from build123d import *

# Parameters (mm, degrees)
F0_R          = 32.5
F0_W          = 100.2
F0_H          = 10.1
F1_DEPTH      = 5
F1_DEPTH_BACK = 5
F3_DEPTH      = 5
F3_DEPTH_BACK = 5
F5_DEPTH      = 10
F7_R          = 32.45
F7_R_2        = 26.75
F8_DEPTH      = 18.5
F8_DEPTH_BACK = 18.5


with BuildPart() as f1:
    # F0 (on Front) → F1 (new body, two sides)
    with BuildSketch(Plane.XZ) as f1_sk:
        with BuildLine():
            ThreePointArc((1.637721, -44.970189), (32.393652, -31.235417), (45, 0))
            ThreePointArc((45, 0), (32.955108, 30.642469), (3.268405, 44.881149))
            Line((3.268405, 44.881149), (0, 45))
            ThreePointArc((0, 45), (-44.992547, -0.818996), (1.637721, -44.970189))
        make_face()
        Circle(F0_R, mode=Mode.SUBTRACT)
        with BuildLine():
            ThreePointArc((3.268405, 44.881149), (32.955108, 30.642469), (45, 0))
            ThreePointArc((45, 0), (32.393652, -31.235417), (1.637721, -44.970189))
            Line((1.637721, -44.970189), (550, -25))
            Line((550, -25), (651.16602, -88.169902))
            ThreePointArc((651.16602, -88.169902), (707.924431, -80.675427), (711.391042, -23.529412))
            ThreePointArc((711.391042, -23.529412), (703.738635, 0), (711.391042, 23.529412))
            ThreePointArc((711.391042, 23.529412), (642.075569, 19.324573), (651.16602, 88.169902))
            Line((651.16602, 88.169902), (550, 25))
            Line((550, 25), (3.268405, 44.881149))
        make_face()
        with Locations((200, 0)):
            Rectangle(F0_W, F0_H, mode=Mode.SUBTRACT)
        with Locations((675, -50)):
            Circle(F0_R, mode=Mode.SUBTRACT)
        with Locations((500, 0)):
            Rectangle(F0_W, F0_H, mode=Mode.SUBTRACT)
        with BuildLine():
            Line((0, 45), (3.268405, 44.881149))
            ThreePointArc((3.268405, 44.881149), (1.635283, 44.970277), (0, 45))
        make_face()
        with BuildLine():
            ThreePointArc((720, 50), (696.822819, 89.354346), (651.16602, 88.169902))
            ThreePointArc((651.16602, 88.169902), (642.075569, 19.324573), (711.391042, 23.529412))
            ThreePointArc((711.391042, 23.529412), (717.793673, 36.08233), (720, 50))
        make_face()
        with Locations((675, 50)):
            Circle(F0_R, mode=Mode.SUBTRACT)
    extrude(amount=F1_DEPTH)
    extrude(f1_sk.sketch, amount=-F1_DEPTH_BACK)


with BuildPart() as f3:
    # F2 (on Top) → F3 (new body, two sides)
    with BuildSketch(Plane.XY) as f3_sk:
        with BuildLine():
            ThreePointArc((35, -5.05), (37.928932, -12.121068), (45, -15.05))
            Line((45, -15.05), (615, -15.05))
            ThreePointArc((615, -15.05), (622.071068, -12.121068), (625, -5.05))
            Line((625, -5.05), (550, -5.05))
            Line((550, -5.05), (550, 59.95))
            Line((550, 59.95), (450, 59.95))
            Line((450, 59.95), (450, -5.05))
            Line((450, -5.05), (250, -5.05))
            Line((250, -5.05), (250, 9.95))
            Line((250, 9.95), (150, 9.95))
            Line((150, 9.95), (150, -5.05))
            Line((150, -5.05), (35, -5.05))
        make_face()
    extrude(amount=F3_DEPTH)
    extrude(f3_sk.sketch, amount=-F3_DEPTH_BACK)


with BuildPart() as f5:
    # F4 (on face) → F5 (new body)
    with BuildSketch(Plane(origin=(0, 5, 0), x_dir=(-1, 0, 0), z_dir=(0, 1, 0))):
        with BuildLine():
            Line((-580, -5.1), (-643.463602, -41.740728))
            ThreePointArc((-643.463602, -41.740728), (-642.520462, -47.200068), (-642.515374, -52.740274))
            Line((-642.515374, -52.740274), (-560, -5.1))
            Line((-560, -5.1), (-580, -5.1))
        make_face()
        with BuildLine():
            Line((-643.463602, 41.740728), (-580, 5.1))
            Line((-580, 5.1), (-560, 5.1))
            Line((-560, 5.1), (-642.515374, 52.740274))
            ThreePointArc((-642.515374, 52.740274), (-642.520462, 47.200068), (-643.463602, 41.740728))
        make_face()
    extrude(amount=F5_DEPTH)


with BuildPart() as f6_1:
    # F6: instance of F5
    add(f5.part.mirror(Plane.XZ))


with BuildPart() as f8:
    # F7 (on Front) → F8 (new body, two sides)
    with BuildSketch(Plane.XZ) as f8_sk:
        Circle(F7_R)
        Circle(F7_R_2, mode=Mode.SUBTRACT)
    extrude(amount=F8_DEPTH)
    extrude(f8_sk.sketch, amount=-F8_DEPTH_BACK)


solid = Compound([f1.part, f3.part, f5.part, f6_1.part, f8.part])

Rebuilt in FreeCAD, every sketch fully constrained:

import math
import FreeCAD as App
import Part
import Sketcher
Q = App.Units.Quantity


def add_polygon(sketch, points):
    """Adds a closed chain of lines whose ends are joined by coincident constraints."""
    first, n = sketch.GeometryCount, len(points)
    for a, b in zip(points, points[1:] + points[:1]):
        sketch.addGeometry(Part.LineSegment(App.Vector(*a, 0), App.Vector(*b, 0)), False)
    for i in range(n):
        sketch.addConstraint(Sketcher.Constraint("Coincident", first + i, 2, first + (i + 1) % n, 1))

doc = App.newDocument("Part")
params = doc.addObject("Spreadsheet::Sheet", "Params")
for row, (alias, value) in enumerate([
    ("sketch1_diameter", "65 mm"),
    ("sketch1_diameter2", "65 mm"),
    ("sketch1_diameter3", "65 mm"),
    ("sketch1_radius", "45 mm"),
    ("sketch1_radius2", "45 mm"),
    ("pad1_length", "5 mm"),
    ("pad1_length2", "5 mm"),
    ("sketch2_radius", "9.999999 mm"),
    ("sketch2_width", "570 mm"),
    ("sketch2_width2", "75 mm"),
    ("sketch2_width3", "100 mm"),
    ("sketch2_width4", "200 mm"),
    ("pad2_length", "5 mm"),
    ("pad2_length2", "5 mm"),
    ("sketch3_width", "20 mm"),
    ("pad3_length", "10 mm"),
    ("sketch4_diameter", "64.9 mm"),
    ("sketch4_diameter2", "53.5 mm"),
    ("pad4_length", "18.5 mm"),
    ("pad4_length2", "18.5 mm"),
], start=1):
    params.set(f"A{row}", alias)
    params.set(f"B{row}", "=" + value)
    params.setAlias(f"B{row}", alias)

body = doc.addObject("PartDesign::Body", "Body")

# Sketch on XZ plane
sketch1 = body.newObject("Sketcher::SketchObject", "Sketch")
sketch1.AttachmentSupport = (doc.getObject("XZ_Plane"), [""])
sketch1.MapMode = "FlatFace"
sketch1.addGeometry(Part.ArcOfCircle(Part.Circle(App.Vector(0, 0, 0), App.Vector(0, 0, 1), 45), math.radians(90), math.radians(272.085672)), False)  # 0
sketch1.addGeometry(Part.LineSegment(App.Vector(1.637721, -44.970189, 0), App.Vector(550, -25, 0)), False)  # 1
sketch1.addGeometry(Part.LineSegment(App.Vector(550, -25, 0), App.Vector(651.16602, -88.169902, 0)), False)  # 2
sketch1.addGeometry(Part.ArcOfCircle(Part.Circle(App.Vector(675, -50, 0), App.Vector(0, 0, 1), 45), math.radians(-121.981404), math.radians(36.031879)), False)  # 3
sketch1.addGeometry(Part.ArcOfCircle(Part.Circle(App.Vector(743.738635, 0, 0), App.Vector(0, 0, 1), 40), math.radians(143.968121), math.radians(216.031879)), False)  # 4
sketch1.addGeometry(Part.ArcOfCircle(Part.Circle(App.Vector(675.000001, 50, 0), App.Vector(0, 0, 1), 44.999999), math.radians(-36.03188), math.radians(0)), False)  # 5
sketch1.addGeometry(Part.ArcOfCircle(Part.Circle(App.Vector(675, 49.999999, 0), App.Vector(0, 0, 1), 45), math.radians(0.000001), math.radians(121.981403)), False)  # 6
sketch1.addGeometry(Part.LineSegment(App.Vector(651.16602, 88.169902, 0), App.Vector(550, 25, 0)), False)  # 7
sketch1.addGeometry(Part.LineSegment(App.Vector(550, 25, 0), App.Vector(3.268405, 44.881149, 0)), False)  # 8
sketch1.addGeometry(Part.ArcOfCircle(Part.Circle(App.Vector(-0.000023, -0.000663, 0), App.Vector(0, 0, 1), 45.000663), math.radians(85.834902), math.radians(89.999971)), False)  # 9
sketch1.addGeometry(Part.Circle(App.Vector(675, -50, 0), App.Vector(0, 0, 1), 32.5), False)  # 10
sketch1.addGeometry(Part.Circle(App.Vector(0, 0, 0), App.Vector(0, 0, 1), 32.5), False)  # 11
add_polygon(sketch1, [(250.1, -5.05), (149.9, -5.05), (149.9, 5.05), (250.1, 5.05)])  # lines 12-15
add_polygon(sketch1, [(550.1, -5.05), (449.9, -5.05), (449.9, 5.05), (550.1, 5.05)])  # lines 16-19
sketch1.addGeometry(Part.Circle(App.Vector(675, 50, 0), App.Vector(0, 0, 1), 32.5), False)  # 20
sketch1.addConstraint(Sketcher.Constraint("Coincident", 0, 2, 1, 1))
sketch1.addConstraint(Sketcher.Constraint("Coincident", 1, 2, 2, 1))
sketch1.addConstraint(Sketcher.Constraint("Coincident", 2, 2, 3, 1))
sketch1.addConstraint(Sketcher.Constraint("Coincident", 3, 2, 4, 2))
sketch1.addConstraint(Sketcher.Constraint("Coincident", 4, 1, 5, 1))
sketch1.addConstraint(Sketcher.Constraint("Coincident", 5, 2, 6, 1))
sketch1.addConstraint(Sketcher.Constraint("Coincident", 6, 2, 7, 1))
sketch1.addConstraint(Sketcher.Constraint("Coincident", 7, 2, 8, 1))
sketch1.addConstraint(Sketcher.Constraint("Coincident", 8, 2, 9, 1))
sketch1.addConstraint(Sketcher.Constraint("Coincident", 9, 2, 0, 1))
sketch1.addConstraint(Sketcher.Constraint("Horizontal", 12))
sketch1.addConstraint(Sketcher.Constraint("Vertical", 13))
sketch1.addConstraint(Sketcher.Constraint("Horizontal", 14))
sketch1.addConstraint(Sketcher.Constraint("Vertical", 15))
sketch1.addConstraint(Sketcher.Constraint("Horizontal", 16))
sketch1.addConstraint(Sketcher.Constraint("Vertical", 17))
sketch1.addConstraint(Sketcher.Constraint("Horizontal", 18))
sketch1.addConstraint(Sketcher.Constraint("Vertical", 19))
sketch1.addConstraint(Sketcher.Constraint("Coincident", 0, 3, -1, 1))
sketch1.addConstraint(Sketcher.Constraint("Coincident", 11, 3, -1, 1))
sketch1.addConstraint(Sketcher.Constraint("Coincident", 6, 3, 5, 3))
sketch1.addConstraint(Sketcher.Constraint("Coincident", 10, 3, 3, 3))
sketch1.addConstraint(Sketcher.Constraint("Coincident", 20, 3, 5, 3))
sketch1.addConstraint(Sketcher.Constraint("PointOnObject", 4, 3, -1))
sketch1.addConstraint(Sketcher.Constraint("PointOnObject", 9, 2, -2))
sketch1.addConstraint(Sketcher.Constraint("Diameter", 10, Q("65 mm")))
sketch1.addConstraint(Sketcher.Constraint("Diameter", 11, Q("65 mm")))
sketch1.addConstraint(Sketcher.Constraint("Diameter", 20, Q("65 mm")))
sketch1.addConstraint(Sketcher.Constraint("Radius", 0, Q("45 mm")))
sketch1.addConstraint(Sketcher.Constraint("Radius", 3, Q("45 mm")))
sketch1.addConstraint(Sketcher.Constraint("Radius", 4, Q("40 mm")))
sketch1.addConstraint(Sketcher.Constraint("Radius", 5, Q("44.999999 mm")))
sketch1.addConstraint(Sketcher.Constraint("DistanceX", 12, 2, 12, 1, Q("100.2 mm")))
sketch1.addConstraint(Sketcher.Constraint("DistanceX", 16, 2, 16, 1, Q("100.2 mm")))
sketch1.addConstraint(Sketcher.Constraint("DistanceY", 13, 1, 13, 2, Q("10.1 mm")))
sketch1.addConstraint(Sketcher.Constraint("DistanceY", 17, 1, 17, 2, Q("10.1 mm")))
sketch1.addConstraint(Sketcher.Constraint("DistanceX", -1, 1, 3, 3, Q("675 mm")))
sketch1.addConstraint(Sketcher.Constraint("DistanceY", 3, 3, -1, 1, Q("50 mm")))
sketch1.addConstraint(Sketcher.Constraint("DistanceX", -1, 1, 5, 3, Q("675.000001 mm")))
sketch1.addConstraint(Sketcher.Constraint("DistanceX", -1, 1, 1, 2, Q("550 mm")))
sketch1.addConstraint(Sketcher.Constraint("DistanceY", 1, 2, -1, 1, Q("25 mm")))
sketch1.addConstraint(Sketcher.Constraint("DistanceY", -1, 1, 5, 2, Q("50 mm")))
sketch1.addConstraint(Sketcher.Constraint("DistanceX", -1, 1, 7, 2, Q("550 mm")))
sketch1.addConstraint(Sketcher.Constraint("DistanceY", -1, 1, 7, 2, Q("25 mm")))
sketch1.addConstraint(Sketcher.Constraint("DistanceX", -1, 1, 12, 2, Q("149.9 mm")))
sketch1.addConstraint(Sketcher.Constraint("DistanceX", -1, 1, 16, 2, Q("449.9 mm")))
sketch1.addConstraint(Sketcher.Constraint("DistanceY", 16, 2, 14, 2, Q("10.1 mm")))
sketch1.addConstraint(Sketcher.Constraint("DistanceY", 12, 2, -1, 1, Q("5.05 mm")))
sketch1.addConstraint(Sketcher.Constraint("Radius", 9, Q("45.000663 mm")))
sketch1.addConstraint(Sketcher.Constraint("DistanceY", 2, 2, -1, 1, Q("88.169902 mm")))
sketch1.addConstraint(Sketcher.Constraint("DistanceY", -1, 1, 6, 2, Q("88.169902 mm")))
sketch1.addConstraint(Sketcher.Constraint("Distance", 8, Q("547.092951 mm")))
sketch1.addConstraint(Sketcher.Constraint("DistanceX", -1, 1, 0, 2, Q("1.637721 mm")))
sketch1.addConstraint(Sketcher.Constraint("DistanceX", -1, 1, 3, 2, Q("711.391042 mm")))
sketch1.addConstraint(Sketcher.Constraint("DistanceY", -1, 1, 4, 1, Q("23.529412 mm")))
sketch1.addConstraint(Sketcher.Constraint("DistanceY", -1, 1, 8, 2, Q("44.881149 mm")))
sketch1.setExpression("Constraints[33]", "Params.sketch1_diameter")
sketch1.setExpression("Constraints[34]", "Params.sketch1_diameter2")
sketch1.setExpression("Constraints[35]", "Params.sketch1_diameter3")
sketch1.setExpression("Constraints[36]", "Params.sketch1_radius")
sketch1.setExpression("Constraints[37]", "Params.sketch1_radius2")
pad1 = body.newObject("PartDesign::Pad", "Pad")
pad1.Profile = sketch1
pad1.Type = "TwoLengths"
pad1.setExpression("Length", "Params.pad1_length")
pad1.setExpression("Length2", "Params.pad1_length2")
body2 = doc.addObject("PartDesign::Body", "Body001")

# Sketch on XY plane
sketch2 = body2.newObject("Sketcher::SketchObject", "Sketch001")
sketch2.AttachmentSupport = (doc.getObject("XY_Plane001"), [""])
sketch2.MapMode = "FlatFace"
sketch2.addGeometry(Part.ArcOfCircle(Part.Circle(App.Vector(45, -5, 0), App.Vector(0, 0, 1), 10), math.radians(180), math.radians(270)), False)
sketch2.addGeometry(Part.LineSegment(App.Vector(45, -15, 0), App.Vector(615, -15, 0)), False)
sketch2.addGeometry(Part.ArcOfCircle(Part.Circle(App.Vector(615, -5, 0), App.Vector(0, 0, 1), 10), math.radians(-90), math.radians(0)), False)
sketch2.addGeometry(Part.LineSegment(App.Vector(625, -5, 0), App.Vector(550, -5, 0)), False)
sketch2.addGeometry(Part.LineSegment(App.Vector(550, -5, 0), App.Vector(550, 60, 0)), False)
sketch2.addGeometry(Part.LineSegment(App.Vector(550, 60, 0), App.Vector(450, 60, 0)), False)
sketch2.addGeometry(Part.LineSegment(App.Vector(450, 60, 0), App.Vector(450, -5, 0)), False)
sketch2.addGeometry(Part.LineSegment(App.Vector(450, -5, 0), App.Vector(250, -5, 0)), False)
sketch2.addGeometry(Part.LineSegment(App.Vector(250, -5, 0), App.Vector(250, 10, 0)), False)
sketch2.addGeometry(Part.LineSegment(App.Vector(250, 10, 0), App.Vector(150, 10, 0)), False)
sketch2.addGeometry(Part.LineSegment(App.Vector(150, 10, 0), App.Vector(150, -5, 0)), False)
sketch2.addGeometry(Part.LineSegment(App.Vector(150, -5, 0), App.Vector(35, -5, 0)), False)
sketch2.addConstraint(Sketcher.Constraint("Tangent", 0, 2, 1, 1))
sketch2.addConstraint(Sketcher.Constraint("Tangent", 1, 2, 2, 1))
sketch2.addConstraint(Sketcher.Constraint("Coincident", 2, 2, 3, 1))
sketch2.addConstraint(Sketcher.Constraint("Coincident", 3, 2, 4, 1))
sketch2.addConstraint(Sketcher.Constraint("Coincident", 4, 2, 5, 1))
sketch2.addConstraint(Sketcher.Constraint("Coincident", 5, 2, 6, 1))
sketch2.addConstraint(Sketcher.Constraint("Coincident", 6, 2, 7, 1))
sketch2.addConstraint(Sketcher.Constraint("Coincident", 7, 2, 8, 1))
sketch2.addConstraint(Sketcher.Constraint("Coincident", 8, 2, 9, 1))
sketch2.addConstraint(Sketcher.Constraint("Coincident", 9, 2, 10, 1))
sketch2.addConstraint(Sketcher.Constraint("Coincident", 10, 2, 11, 1))
sketch2.addConstraint(Sketcher.Constraint("Coincident", 11, 2, 0, 1))
sketch2.addConstraint(Sketcher.Constraint("Horizontal", 1))
sketch2.addConstraint(Sketcher.Constraint("Horizontal", 3))
sketch2.addConstraint(Sketcher.Constraint("Vertical", 4))
sketch2.addConstraint(Sketcher.Constraint("Horizontal", 5))
sketch2.addConstraint(Sketcher.Constraint("Vertical", 6))
sketch2.addConstraint(Sketcher.Constraint("Horizontal", 7))
sketch2.addConstraint(Sketcher.Constraint("Vertical", 8))
sketch2.addConstraint(Sketcher.Constraint("Horizontal", 9))
sketch2.addConstraint(Sketcher.Constraint("Vertical", 10))
sketch2.addConstraint(Sketcher.Constraint("Horizontal", 11))
sketch2.addConstraint(Sketcher.Constraint("Equal", 0, 2))
sketch2.addConstraint(Sketcher.Constraint("Horizontal", 0, 3, 2, 2))
sketch2.addConstraint(Sketcher.Constraint("Horizontal", 3, 2, 6, 2))
sketch2.addConstraint(Sketcher.Constraint("Horizontal", 7, 2, 10, 2))
sketch2.addConstraint(Sketcher.Constraint("Equal", 5, 9))
sketch2.addConstraint(Sketcher.Constraint("Radius", 0, Q("9.999999 mm")))
sketch2.addConstraint(Sketcher.Constraint("DistanceX", 1, 1, 1, 2, Q("570 mm")))
sketch2.addConstraint(Sketcher.Constraint("DistanceX", 3, 2, 3, 1, Q("75 mm")))
sketch2.addConstraint(Sketcher.Constraint("DistanceX", 5, 2, 5, 1, Q("100 mm")))
sketch2.addConstraint(Sketcher.Constraint("DistanceX", 7, 2, 7, 1, Q("200 mm")))
sketch2.addConstraint(Sketcher.Constraint("DistanceY", 4, 1, 4, 2, Q("65 mm")))
sketch2.addConstraint(Sketcher.Constraint("DistanceY", 8, 1, 8, 2, Q("15 mm")))
sketch2.addConstraint(Sketcher.Constraint("DistanceX", -1, 1, 0, 3, Q("44.999999 mm")))
sketch2.addConstraint(Sketcher.Constraint("DistanceY", 0, 3, -1, 1, Q("5.050001 mm")))
sketch2.setExpression("Constraints[27]", "Params.sketch2_radius")
sketch2.setExpression("Constraints[28]", "Params.sketch2_width")
sketch2.setExpression("Constraints[29]", "Params.sketch2_width2")
sketch2.setExpression("Constraints[30]", "Params.sketch2_width3")
sketch2.setExpression("Constraints[31]", "Params.sketch2_width4")
pad2 = body2.newObject("PartDesign::Pad", "Pad001")
pad2.Profile = sketch2
pad2.Type = "TwoLengths"
pad2.setExpression("Length", "Params.pad2_length")
pad2.setExpression("Length2", "Params.pad2_length2")
body3 = doc.addObject("PartDesign::Body", "Body002")
body3.AllowCompound = True

# Sketch on XZ plane
sketch3 = body3.newObject("Sketcher::SketchObject", "Sketch002")
sketch3.AttachmentSupport = (doc.getObject("XZ_Plane002"), [""])
sketch3.MapMode = "FlatFace"
sketch3.AttachmentOffset = App.Placement(App.Vector(0, 0, -5), App.Rotation())
sketch3.addGeometry(Part.LineSegment(App.Vector(580, -5, 0), App.Vector(643, -42, 0)), False)
sketch3.addGeometry(Part.ArcOfCircle(Part.Circle(App.Vector(675, -50, 0), App.Vector(0, 0, 1), 33), math.radians(165.32), math.radians(184.82)), False)
sketch3.addGeometry(Part.LineSegment(App.Vector(643, -53, 0), App.Vector(560, -5, 0)), False)
sketch3.addGeometry(Part.LineSegment(App.Vector(560, -5, 0), App.Vector(580, -5, 0)), False)
sketch3.addGeometry(Part.LineSegment(App.Vector(643, 42, 0), App.Vector(580, 5, 0)), False)
sketch3.addGeometry(Part.LineSegment(App.Vector(580, 5, 0), App.Vector(560, 5, 0)), False)
sketch3.addGeometry(Part.LineSegment(App.Vector(560, 5, 0), App.Vector(643, 53, 0)), False)
sketch3.addGeometry(Part.ArcOfCircle(Part.Circle(App.Vector(675, 50, 0), App.Vector(0, 0, 1), 33), math.radians(175.18), math.radians(194.68)), False)
sketch3.addConstraint(Sketcher.Constraint("Coincident", 0, 2, 1, 1))
sketch3.addConstraint(Sketcher.Constraint("Coincident", 1, 2, 2, 1))
sketch3.addConstraint(Sketcher.Constraint("Coincident", 2, 2, 3, 1))
sketch3.addConstraint(Sketcher.Constraint("Coincident", 3, 2, 0, 1))
sketch3.addConstraint(Sketcher.Constraint("Coincident", 4, 2, 5, 1))
sketch3.addConstraint(Sketcher.Constraint("Coincident", 5, 2, 6, 1))
sketch3.addConstraint(Sketcher.Constraint("Coincident", 6, 2, 7, 1))
sketch3.addConstraint(Sketcher.Constraint("Coincident", 7, 2, 4, 1))
sketch3.addConstraint(Sketcher.Constraint("Horizontal", 3))
sketch3.addConstraint(Sketcher.Constraint("Horizontal", 5))
sketch3.addConstraint(Sketcher.Constraint("Equal", 1, 7))
sketch3.addConstraint(Sketcher.Constraint("Symmetric", 1, 3, 7, 3, -1))
sketch3.addConstraint(Sketcher.Constraint("Symmetric", 3, 2, 4, 2, -1))
sketch3.addConstraint(Sketcher.Constraint("Parallel", 0, 2))
sketch3.addConstraint(Sketcher.Constraint("Parallel", 4, 6))
sketch3.addConstraint(Sketcher.Constraint("Vertical", 2, 2, 5, 2))
sketch3.addConstraint(Sketcher.Constraint("Vertical", 1, 2, 6, 2))
sketch3.addConstraint(Sketcher.Constraint("DistanceX", 3, 1, 3, 2, Q("20 mm")))
sketch3.addConstraint(Sketcher.Constraint("Angle", 0, Q("-30 deg")))
sketch3.addConstraint(Sketcher.Constraint("DistanceY", 1, 3, -1, 1, Q("50.000002 mm")))
sketch3.addConstraint(Sketcher.Constraint("DistanceX", -1, 1, 2, 2, Q("560 mm")))
sketch3.addConstraint(Sketcher.Constraint("DistanceY", 2, 2, -1, 1, Q("5.1 mm")))
sketch3.addConstraint(Sketcher.Constraint("Radius", 1, Q("32.599992 mm")))
sketch3.addConstraint(Sketcher.Constraint("DistanceY", 0, 2, 6, 2, Q("94.481002 mm")))
sketch3.setExpression("Constraints[17]", "Params.sketch3_width")
pad3 = body3.newObject("PartDesign::Pad", "Pad002")
pad3.Profile = sketch3
pad3.setExpression("Length", "Params.pad3_length")
pad3.Reversed = True
body4 = doc.addObject("PartDesign::Body", "Body003")
body4.AllowCompound = True
doc.recompute()

mirroring = doc.addObject("Part::Mirroring", "Mirroring")
mirroring.Source = body3
mirroring.Base = App.Vector(0, 0, 0)
mirroring.Normal = App.Vector(0, -1, 0)
body4.BaseFeature = mirroring
doc.recompute()
body5 = doc.addObject("PartDesign::Body", "Body004")

# Sketch on XZ plane
sketch4 = body5.newObject("Sketcher::SketchObject", "Sketch003")
sketch4.AttachmentSupport = (doc.getObject("XZ_Plane004"), [""])
sketch4.MapMode = "FlatFace"
sketch4.addGeometry(Part.Circle(App.Vector(0, 0, 0), App.Vector(0, 0, 1), 32), False)
sketch4.addGeometry(Part.Circle(App.Vector(0, 0, 0), App.Vector(0, 0, 1), 27), False)
sketch4.addConstraint(Sketcher.Constraint("Coincident", 0, 3, -1, 1))
sketch4.addConstraint(Sketcher.Constraint("Coincident", 1, 3, -1, 1))
sketch4.addConstraint(Sketcher.Constraint("Diameter", 0, Q("64.9 mm")))
sketch4.addConstraint(Sketcher.Constraint("Diameter", 1, Q("53.5 mm")))
sketch4.setExpression("Constraints[2]", "Params.sketch4_diameter")
sketch4.setExpression("Constraints[3]", "Params.sketch4_diameter2")
pad4 = body5.newObject("PartDesign::Pad", "Pad003")
pad4.Profile = sketch4
pad4.Type = "TwoLengths"
pad4.setExpression("Length", "Params.pad4_length")
pad4.setExpression("Length2", "Params.pad4_length2")
mirroring.Visibility = False

doc.recompute()
